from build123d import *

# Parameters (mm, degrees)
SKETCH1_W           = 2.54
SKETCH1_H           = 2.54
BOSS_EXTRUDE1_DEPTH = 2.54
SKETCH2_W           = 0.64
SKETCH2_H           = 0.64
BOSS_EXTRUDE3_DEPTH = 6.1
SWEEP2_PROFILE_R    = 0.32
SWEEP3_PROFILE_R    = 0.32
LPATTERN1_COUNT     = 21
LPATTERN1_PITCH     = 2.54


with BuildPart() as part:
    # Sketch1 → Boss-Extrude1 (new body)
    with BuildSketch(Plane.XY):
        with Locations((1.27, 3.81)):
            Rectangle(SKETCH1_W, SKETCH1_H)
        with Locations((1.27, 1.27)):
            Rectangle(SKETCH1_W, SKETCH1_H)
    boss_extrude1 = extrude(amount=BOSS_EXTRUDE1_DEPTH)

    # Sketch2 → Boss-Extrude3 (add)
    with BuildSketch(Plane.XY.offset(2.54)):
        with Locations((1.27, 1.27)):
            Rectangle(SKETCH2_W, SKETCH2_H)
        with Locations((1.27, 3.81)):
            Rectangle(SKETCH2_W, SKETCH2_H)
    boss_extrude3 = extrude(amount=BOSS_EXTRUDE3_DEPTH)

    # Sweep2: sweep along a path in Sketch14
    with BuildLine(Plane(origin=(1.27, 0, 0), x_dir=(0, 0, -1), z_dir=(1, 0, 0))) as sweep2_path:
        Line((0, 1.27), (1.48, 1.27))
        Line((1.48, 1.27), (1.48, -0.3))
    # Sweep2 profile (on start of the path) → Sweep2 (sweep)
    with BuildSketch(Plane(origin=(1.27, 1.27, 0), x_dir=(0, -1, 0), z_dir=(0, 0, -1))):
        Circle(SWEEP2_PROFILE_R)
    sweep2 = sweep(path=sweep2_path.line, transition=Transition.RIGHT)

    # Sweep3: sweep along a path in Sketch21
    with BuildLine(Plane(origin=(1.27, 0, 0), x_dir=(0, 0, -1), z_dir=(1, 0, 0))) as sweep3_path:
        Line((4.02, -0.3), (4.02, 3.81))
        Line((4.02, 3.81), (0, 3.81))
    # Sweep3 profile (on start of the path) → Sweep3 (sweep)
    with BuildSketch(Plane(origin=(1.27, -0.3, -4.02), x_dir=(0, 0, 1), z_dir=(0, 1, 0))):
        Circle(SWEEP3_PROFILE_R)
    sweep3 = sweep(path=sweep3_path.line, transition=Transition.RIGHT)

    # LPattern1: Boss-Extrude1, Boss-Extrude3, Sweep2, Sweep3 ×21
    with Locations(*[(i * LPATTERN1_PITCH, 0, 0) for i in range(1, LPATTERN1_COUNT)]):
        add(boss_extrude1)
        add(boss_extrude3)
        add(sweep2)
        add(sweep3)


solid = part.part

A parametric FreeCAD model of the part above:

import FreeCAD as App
import Part
import Sketcher

V = App.Vector
Q = App.Units.Quantity


def add_polygon(sketch, points):
    """Adds a closed chain of lines whose ends are joined by coincident constraints."""
    first, n = sketch.GeometryCount, len(points)
    for a, b in zip(points, points[1:] + points[:1]):
        sketch.addGeometry(Part.LineSegment(App.Vector(*a, 0), App.Vector(*b, 0)), False)
    for i in range(n):
        sketch.addConstraint(Sketcher.Constraint("Coincident", first + i, 2, first + (i + 1) % n, 1))

doc = App.newDocument("Part")
body = doc.addObject("PartDesign::Body", "Body")

# Sketch on XY plane
sketch1 = doc.addObject("Sketcher::SketchObject", "Sketch")
body.addObject(sketch1)
sketch1.AttachmentSupport = (doc.XY_Plane, [""])
sketch1.MapMode = "FlatFace"
add_polygon(sketch1, [(0, 5.1), (0, 0), (2.5, 0), (2.5, 5.1)])  # lines 0-3
sketch1.addConstraint([
    Sketcher.Constraint("Vertical", 0),
    Sketcher.Constraint("Horizontal", 1),
    Sketcher.Constraint("Vertical", 2),
    Sketcher.Constraint("Horizontal", 3),
    Sketcher.Constraint("Coincident", 0, 2, -1, 1),
    Sketcher.Constraint("DistanceX", 1, 1, 1, 2, Q("0.1 in")),
    Sketcher.Constraint("DistanceY", 0, 2, 0, 1, Q("0.2 in")),
])
pad1 = doc.addObject("PartDesign::Pad", "Pad")
body.addObject(pad1)
pad1.Profile = sketch1
pad1.Length = Q("0.1 in")

# Sketch on XY plane
sketch2 = doc.addObject("Sketcher::SketchObject", "Sketch001")
body.addObject(sketch2)
sketch2.AttachmentSupport = (doc.XY_Plane, [""])
sketch2.MapMode = "FlatFace"
sketch2.AttachmentOffset = App.Placement(V(0, 0, 0.1 * 25.4), App.Rotation())
add_polygon(sketch2, [(0.9, 1.6), (0.9, 0.9), (1.6, 0.9), (1.6, 1.6)])  # lines 0-3
add_polygon(sketch2, [(0.9, 4.1), (0.9, 3.5), (1.6, 3.5), (1.6, 4.1)])  # lines 4-7
sketch2.addConstraint([
    Sketcher.Constraint("Vertical", 0),
    Sketcher.Constraint("Horizontal", 1),
    Sketcher.Constraint("Vertical", 2),
    Sketcher.Constraint("Horizontal", 3),
    Sketcher.Constraint("Vertical", 4),
    Sketcher.Constraint("Horizontal", 5),
    Sketcher.Constraint("Vertical", 6),
    Sketcher.Constraint("Horizontal", 7),
    Sketcher.Constraint("Vertical", 3, 2, 4, 2),
    Sketcher.Constraint("Vertical", 2, 2, 5, 2),
    Sketcher.Constraint("Equal", 7, 0),
    Sketcher.Constraint("Equal", 2, 4),
    Sketcher.Constraint("DistanceY", 0, 2, 4, 2, Q("0.1 in")),
    Sketcher.Constraint("DistanceX", 1, 1, 1, 2, 0.64),
    Sketcher.Constraint("DistanceX", -1, 1, 0, 2, 0.95),
    Sketcher.Constraint("DistanceY", -1, 1, 0, 2, 0.95),
])
pad2 = doc.addObject("PartDesign::Pad", "Pad001")
body.addObject(pad2)
pad2.Profile = sketch2
pad2.Length = 6.1

# Sketch on XY plane
sketch3 = doc.addObject("Sketcher::SketchObject", "Sketch002")
body.addObject(sketch3)
sketch3.AttachmentSupport = (doc.XY_Plane, [""])
sketch3.MapMode = "FlatFace"
sketch3.addGeometry(Part.Circle(V(1.27, 1.27, 0), V(0, 0, 1), 0.32), False)
sketch3.addConstraint([
    Sketcher.Constraint("Diameter", 0, 0.64),
    Sketcher.Constraint("DistanceX", -1, 1, 0, 3, Q("0.05 in")),
    Sketcher.Constraint("DistanceY", -1, 1, 0, 3, Q("0.05 in")),
])

# Sketch on YZ plane
sketch4 = doc.addObject("Sketcher::SketchObject", "Sketch003")
body.addObject(sketch4)
sketch4.AttachmentSupport = (doc.YZ_Plane, [""])
sketch4.MapMode = "FlatFace"
sketch4.AttachmentOffset = App.Placement(V(0, 0, 0.05 * 25.4), App.Rotation())
sketch4.addGeometry([
    Part.LineSegment(V(1.3, 0, 0), V(1.3, -1.5, 0)),
    Part.LineSegment(V(1.3, -1.5, 0), V(-0.3, -1.5, 0)),
], False)
sketch4.addConstraint([
    Sketcher.Constraint("Coincident", 0, 2, 1, 1),
    Sketcher.Constraint("Vertical", 0),
    Sketcher.Constraint("Horizontal", 1),
    Sketcher.Constraint("PointOnObject", 0, 1, -1),
    Sketcher.Constraint("DistanceX", -1, 1, 0, 1, Q("0.05 in")),
    Sketcher.Constraint("DistanceX", 1, 2, 1, 1, 1.57),
    Sketcher.Constraint("DistanceY", 0, 2, 0, 1, 1.48),
])
doc.recompute()

additivepipe = doc.addObject("PartDesign::AdditivePipe", "AdditivePipe")
body.addObject(additivepipe)
additivepipe.Profile = sketch3
additivepipe.Spine = (sketch4, ["Edge1", "Edge2"])
additivepipe.Transition = "Right corner"

# Sketch on XZ plane
sketch5 = doc.addObject("Sketcher::SketchObject", "Sketch004")
body.addObject(sketch5)
sketch5.AttachmentSupport = (doc.XZ_Plane, [""])
sketch5.MapMode = "FlatFace"
sketch5.AttachmentOffset = App.Placement(V(0, 0, 0.3), App.Rotation())
sketch5.addGeometry(Part.Circle(V(1.27, -4.02, 0), V(0, 0, 1), 0.32), False)
sketch5.addConstraint([
    Sketcher.Constraint("Diameter", 0, 0.64),
    Sketcher.Constraint("DistanceX", -1, 1, 0, 3, Q("0.05 in")),
    Sketcher.Constraint("DistanceY", 0, 3, -1, 1, 4.02),
])

# Sketch on YZ plane
sketch6 = doc.addObject("Sketcher::SketchObject", "Sketch005")
body.addObject(sketch6)
sketch6.AttachmentSupport = (doc.YZ_Plane, [""])
sketch6.MapMode = "FlatFace"
sketch6.AttachmentOffset = App.Placement(V(0, 0, 0.05 * 25.4), App.Rotation())
sketch6.addGeometry([
    Part.LineSegment(V(-0.3, -4, 0), V(3.8, -4, 0)),
    Part.LineSegment(V(3.8, -4, 0), V(3.8, 0, 0)),
], False)
sketch6.addConstraint([
    Sketcher.Constraint("Coincident", 0, 2, 1, 1),
    Sketcher.Constraint("Horizontal", 0),
    Sketcher.Constraint("Vertical", 1),
    Sketcher.Constraint("PointOnObject", 1, 2, -1),
    Sketcher.Constraint("DistanceX", -1, 1, 0, 2, Q("0.15 in")),
    Sketcher.Constraint("DistanceX", 0, 1, 0, 2, 4.11),
    Sketcher.Constraint("DistanceY", 1, 1, 1, 2, 4.02),
])
doc.recompute()

additivepipe2 = doc.addObject("PartDesign::AdditivePipe", "AdditivePipe001")
body.addObject(additivepipe2)
additivepipe2.Profile = sketch5
additivepipe2.Spine = (sketch6, ["Edge1", "Edge2"])
additivepipe2.Transition = "Right corner"
doc.recompute()

linearpattern = doc.addObject("PartDesign::LinearPattern", "LinearPattern")
body.addObject(linearpattern)
linearpattern.Originals = [pad1, pad2, additivepipe, additivepipe2]
linearpattern.Direction = (doc.X_Axis, [""])
linearpattern.Mode = "offset"
linearpattern.Offset = Q("0.1 in")
linearpattern.Occurrences = 21
body.Tip = linearpattern

doc.recompute()
